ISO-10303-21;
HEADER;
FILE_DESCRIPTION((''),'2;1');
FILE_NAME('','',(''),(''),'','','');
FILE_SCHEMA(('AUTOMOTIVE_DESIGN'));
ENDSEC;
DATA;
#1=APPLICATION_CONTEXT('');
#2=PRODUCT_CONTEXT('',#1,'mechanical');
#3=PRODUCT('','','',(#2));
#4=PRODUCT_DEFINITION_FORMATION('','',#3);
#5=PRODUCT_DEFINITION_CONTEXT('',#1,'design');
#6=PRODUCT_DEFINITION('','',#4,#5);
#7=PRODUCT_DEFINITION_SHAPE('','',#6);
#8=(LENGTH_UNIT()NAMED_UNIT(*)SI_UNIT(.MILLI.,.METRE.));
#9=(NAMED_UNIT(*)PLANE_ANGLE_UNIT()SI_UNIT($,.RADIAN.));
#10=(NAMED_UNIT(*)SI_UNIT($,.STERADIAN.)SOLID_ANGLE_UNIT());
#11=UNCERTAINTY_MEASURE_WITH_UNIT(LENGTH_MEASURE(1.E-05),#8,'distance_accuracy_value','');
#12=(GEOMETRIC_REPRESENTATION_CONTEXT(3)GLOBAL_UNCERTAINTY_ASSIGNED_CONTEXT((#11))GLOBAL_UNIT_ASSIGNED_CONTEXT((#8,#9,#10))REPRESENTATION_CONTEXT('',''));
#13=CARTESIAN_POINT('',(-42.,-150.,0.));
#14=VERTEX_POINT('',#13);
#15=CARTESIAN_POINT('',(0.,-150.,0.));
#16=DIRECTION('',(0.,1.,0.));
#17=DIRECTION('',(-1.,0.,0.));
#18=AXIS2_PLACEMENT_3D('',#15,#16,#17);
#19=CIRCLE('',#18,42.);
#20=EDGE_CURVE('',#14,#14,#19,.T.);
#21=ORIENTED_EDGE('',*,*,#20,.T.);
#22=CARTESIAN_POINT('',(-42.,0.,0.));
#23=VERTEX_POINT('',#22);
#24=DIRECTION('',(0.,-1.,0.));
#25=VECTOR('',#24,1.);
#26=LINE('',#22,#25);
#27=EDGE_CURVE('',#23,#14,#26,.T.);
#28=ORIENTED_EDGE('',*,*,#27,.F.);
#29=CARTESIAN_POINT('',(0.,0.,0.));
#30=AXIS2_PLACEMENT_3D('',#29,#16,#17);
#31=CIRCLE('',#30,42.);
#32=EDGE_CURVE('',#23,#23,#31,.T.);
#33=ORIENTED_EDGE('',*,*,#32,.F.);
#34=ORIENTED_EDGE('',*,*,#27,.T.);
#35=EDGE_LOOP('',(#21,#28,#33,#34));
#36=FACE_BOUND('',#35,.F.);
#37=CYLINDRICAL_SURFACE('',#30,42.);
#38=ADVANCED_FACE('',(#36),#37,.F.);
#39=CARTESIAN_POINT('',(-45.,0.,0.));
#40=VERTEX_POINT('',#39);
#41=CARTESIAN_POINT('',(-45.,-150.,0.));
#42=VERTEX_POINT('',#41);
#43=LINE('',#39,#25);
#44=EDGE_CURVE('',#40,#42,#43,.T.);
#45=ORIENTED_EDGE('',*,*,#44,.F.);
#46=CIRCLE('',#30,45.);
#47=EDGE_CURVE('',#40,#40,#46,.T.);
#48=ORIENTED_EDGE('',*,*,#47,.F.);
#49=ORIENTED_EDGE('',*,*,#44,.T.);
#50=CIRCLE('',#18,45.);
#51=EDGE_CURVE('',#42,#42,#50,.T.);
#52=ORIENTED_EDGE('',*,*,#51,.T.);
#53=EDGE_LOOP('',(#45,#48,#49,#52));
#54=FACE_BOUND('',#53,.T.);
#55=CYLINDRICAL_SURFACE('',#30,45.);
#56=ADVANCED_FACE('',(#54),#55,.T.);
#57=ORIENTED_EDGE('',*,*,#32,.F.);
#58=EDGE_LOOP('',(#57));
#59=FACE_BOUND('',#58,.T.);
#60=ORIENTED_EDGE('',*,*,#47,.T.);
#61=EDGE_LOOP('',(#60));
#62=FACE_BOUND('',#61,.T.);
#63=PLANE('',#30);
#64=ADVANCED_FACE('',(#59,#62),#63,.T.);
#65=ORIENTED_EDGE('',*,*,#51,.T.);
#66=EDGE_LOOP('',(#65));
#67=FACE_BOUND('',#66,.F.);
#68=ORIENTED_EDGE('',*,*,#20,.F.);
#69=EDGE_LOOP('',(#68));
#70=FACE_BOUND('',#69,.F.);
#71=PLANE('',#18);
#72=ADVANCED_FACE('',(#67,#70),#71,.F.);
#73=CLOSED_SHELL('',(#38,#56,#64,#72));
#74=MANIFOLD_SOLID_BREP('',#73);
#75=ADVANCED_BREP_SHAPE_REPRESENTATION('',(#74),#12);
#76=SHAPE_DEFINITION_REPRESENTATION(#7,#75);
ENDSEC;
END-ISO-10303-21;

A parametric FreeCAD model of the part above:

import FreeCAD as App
import Part
import Sketcher

V = App.Vector
Q = App.Units.Quantity

doc = App.newDocument("Part")
params = doc.addObject("Spreadsheet::Sheet", "Params")
for row, (alias, value) in enumerate([
    ("sketch1_diameter", "90 mm"),
    ("sketch1_diameter2", "84 mm"),
    ("pad1_length", "150 mm"),
], start=1):
    params.set(f"A{row}", alias)
    params.set(f"B{row}", "=" + value)
    params.setAlias(f"B{row}", alias)

body = doc.addObject("PartDesign::Body", "Body")

sketch1 = body.newObject("Sketcher::SketchObject", "Sketch")
sketch1.AttachmentSupport = (doc.getObject("XZ_Plane"), [""])
sketch1.MapMode = "FlatFace"
sketch1.addGeometry([
    Part.Circle(V(0, 0, 0), V(0, 0, 1), 45),
    Part.Circle(V(0, 0, 0), V(0, 0, 1), 42),
], False)
sketch1.addConstraint([
    Sketcher.Constraint("Coincident", 0, 3, -1, 1),
    Sketcher.Constraint("Coincident", 1, 3, -1, 1),
    Sketcher.Constraint("Diameter", 0, Q("90 mm")),
    Sketcher.Constraint("Diameter", 1, Q("84 mm")),
])
sketch1.setExpression("Constraints[2]", "Params.sketch1_diameter")
sketch1.setExpression("Constraints[3]", "Params.sketch1_diameter2")
pad1 = body.newObject("PartDesign::Pad", "Pad")
pad1.Profile = sketch1
pad1.setExpression("Length", "Params.pad1_length")

doc.recompute()
